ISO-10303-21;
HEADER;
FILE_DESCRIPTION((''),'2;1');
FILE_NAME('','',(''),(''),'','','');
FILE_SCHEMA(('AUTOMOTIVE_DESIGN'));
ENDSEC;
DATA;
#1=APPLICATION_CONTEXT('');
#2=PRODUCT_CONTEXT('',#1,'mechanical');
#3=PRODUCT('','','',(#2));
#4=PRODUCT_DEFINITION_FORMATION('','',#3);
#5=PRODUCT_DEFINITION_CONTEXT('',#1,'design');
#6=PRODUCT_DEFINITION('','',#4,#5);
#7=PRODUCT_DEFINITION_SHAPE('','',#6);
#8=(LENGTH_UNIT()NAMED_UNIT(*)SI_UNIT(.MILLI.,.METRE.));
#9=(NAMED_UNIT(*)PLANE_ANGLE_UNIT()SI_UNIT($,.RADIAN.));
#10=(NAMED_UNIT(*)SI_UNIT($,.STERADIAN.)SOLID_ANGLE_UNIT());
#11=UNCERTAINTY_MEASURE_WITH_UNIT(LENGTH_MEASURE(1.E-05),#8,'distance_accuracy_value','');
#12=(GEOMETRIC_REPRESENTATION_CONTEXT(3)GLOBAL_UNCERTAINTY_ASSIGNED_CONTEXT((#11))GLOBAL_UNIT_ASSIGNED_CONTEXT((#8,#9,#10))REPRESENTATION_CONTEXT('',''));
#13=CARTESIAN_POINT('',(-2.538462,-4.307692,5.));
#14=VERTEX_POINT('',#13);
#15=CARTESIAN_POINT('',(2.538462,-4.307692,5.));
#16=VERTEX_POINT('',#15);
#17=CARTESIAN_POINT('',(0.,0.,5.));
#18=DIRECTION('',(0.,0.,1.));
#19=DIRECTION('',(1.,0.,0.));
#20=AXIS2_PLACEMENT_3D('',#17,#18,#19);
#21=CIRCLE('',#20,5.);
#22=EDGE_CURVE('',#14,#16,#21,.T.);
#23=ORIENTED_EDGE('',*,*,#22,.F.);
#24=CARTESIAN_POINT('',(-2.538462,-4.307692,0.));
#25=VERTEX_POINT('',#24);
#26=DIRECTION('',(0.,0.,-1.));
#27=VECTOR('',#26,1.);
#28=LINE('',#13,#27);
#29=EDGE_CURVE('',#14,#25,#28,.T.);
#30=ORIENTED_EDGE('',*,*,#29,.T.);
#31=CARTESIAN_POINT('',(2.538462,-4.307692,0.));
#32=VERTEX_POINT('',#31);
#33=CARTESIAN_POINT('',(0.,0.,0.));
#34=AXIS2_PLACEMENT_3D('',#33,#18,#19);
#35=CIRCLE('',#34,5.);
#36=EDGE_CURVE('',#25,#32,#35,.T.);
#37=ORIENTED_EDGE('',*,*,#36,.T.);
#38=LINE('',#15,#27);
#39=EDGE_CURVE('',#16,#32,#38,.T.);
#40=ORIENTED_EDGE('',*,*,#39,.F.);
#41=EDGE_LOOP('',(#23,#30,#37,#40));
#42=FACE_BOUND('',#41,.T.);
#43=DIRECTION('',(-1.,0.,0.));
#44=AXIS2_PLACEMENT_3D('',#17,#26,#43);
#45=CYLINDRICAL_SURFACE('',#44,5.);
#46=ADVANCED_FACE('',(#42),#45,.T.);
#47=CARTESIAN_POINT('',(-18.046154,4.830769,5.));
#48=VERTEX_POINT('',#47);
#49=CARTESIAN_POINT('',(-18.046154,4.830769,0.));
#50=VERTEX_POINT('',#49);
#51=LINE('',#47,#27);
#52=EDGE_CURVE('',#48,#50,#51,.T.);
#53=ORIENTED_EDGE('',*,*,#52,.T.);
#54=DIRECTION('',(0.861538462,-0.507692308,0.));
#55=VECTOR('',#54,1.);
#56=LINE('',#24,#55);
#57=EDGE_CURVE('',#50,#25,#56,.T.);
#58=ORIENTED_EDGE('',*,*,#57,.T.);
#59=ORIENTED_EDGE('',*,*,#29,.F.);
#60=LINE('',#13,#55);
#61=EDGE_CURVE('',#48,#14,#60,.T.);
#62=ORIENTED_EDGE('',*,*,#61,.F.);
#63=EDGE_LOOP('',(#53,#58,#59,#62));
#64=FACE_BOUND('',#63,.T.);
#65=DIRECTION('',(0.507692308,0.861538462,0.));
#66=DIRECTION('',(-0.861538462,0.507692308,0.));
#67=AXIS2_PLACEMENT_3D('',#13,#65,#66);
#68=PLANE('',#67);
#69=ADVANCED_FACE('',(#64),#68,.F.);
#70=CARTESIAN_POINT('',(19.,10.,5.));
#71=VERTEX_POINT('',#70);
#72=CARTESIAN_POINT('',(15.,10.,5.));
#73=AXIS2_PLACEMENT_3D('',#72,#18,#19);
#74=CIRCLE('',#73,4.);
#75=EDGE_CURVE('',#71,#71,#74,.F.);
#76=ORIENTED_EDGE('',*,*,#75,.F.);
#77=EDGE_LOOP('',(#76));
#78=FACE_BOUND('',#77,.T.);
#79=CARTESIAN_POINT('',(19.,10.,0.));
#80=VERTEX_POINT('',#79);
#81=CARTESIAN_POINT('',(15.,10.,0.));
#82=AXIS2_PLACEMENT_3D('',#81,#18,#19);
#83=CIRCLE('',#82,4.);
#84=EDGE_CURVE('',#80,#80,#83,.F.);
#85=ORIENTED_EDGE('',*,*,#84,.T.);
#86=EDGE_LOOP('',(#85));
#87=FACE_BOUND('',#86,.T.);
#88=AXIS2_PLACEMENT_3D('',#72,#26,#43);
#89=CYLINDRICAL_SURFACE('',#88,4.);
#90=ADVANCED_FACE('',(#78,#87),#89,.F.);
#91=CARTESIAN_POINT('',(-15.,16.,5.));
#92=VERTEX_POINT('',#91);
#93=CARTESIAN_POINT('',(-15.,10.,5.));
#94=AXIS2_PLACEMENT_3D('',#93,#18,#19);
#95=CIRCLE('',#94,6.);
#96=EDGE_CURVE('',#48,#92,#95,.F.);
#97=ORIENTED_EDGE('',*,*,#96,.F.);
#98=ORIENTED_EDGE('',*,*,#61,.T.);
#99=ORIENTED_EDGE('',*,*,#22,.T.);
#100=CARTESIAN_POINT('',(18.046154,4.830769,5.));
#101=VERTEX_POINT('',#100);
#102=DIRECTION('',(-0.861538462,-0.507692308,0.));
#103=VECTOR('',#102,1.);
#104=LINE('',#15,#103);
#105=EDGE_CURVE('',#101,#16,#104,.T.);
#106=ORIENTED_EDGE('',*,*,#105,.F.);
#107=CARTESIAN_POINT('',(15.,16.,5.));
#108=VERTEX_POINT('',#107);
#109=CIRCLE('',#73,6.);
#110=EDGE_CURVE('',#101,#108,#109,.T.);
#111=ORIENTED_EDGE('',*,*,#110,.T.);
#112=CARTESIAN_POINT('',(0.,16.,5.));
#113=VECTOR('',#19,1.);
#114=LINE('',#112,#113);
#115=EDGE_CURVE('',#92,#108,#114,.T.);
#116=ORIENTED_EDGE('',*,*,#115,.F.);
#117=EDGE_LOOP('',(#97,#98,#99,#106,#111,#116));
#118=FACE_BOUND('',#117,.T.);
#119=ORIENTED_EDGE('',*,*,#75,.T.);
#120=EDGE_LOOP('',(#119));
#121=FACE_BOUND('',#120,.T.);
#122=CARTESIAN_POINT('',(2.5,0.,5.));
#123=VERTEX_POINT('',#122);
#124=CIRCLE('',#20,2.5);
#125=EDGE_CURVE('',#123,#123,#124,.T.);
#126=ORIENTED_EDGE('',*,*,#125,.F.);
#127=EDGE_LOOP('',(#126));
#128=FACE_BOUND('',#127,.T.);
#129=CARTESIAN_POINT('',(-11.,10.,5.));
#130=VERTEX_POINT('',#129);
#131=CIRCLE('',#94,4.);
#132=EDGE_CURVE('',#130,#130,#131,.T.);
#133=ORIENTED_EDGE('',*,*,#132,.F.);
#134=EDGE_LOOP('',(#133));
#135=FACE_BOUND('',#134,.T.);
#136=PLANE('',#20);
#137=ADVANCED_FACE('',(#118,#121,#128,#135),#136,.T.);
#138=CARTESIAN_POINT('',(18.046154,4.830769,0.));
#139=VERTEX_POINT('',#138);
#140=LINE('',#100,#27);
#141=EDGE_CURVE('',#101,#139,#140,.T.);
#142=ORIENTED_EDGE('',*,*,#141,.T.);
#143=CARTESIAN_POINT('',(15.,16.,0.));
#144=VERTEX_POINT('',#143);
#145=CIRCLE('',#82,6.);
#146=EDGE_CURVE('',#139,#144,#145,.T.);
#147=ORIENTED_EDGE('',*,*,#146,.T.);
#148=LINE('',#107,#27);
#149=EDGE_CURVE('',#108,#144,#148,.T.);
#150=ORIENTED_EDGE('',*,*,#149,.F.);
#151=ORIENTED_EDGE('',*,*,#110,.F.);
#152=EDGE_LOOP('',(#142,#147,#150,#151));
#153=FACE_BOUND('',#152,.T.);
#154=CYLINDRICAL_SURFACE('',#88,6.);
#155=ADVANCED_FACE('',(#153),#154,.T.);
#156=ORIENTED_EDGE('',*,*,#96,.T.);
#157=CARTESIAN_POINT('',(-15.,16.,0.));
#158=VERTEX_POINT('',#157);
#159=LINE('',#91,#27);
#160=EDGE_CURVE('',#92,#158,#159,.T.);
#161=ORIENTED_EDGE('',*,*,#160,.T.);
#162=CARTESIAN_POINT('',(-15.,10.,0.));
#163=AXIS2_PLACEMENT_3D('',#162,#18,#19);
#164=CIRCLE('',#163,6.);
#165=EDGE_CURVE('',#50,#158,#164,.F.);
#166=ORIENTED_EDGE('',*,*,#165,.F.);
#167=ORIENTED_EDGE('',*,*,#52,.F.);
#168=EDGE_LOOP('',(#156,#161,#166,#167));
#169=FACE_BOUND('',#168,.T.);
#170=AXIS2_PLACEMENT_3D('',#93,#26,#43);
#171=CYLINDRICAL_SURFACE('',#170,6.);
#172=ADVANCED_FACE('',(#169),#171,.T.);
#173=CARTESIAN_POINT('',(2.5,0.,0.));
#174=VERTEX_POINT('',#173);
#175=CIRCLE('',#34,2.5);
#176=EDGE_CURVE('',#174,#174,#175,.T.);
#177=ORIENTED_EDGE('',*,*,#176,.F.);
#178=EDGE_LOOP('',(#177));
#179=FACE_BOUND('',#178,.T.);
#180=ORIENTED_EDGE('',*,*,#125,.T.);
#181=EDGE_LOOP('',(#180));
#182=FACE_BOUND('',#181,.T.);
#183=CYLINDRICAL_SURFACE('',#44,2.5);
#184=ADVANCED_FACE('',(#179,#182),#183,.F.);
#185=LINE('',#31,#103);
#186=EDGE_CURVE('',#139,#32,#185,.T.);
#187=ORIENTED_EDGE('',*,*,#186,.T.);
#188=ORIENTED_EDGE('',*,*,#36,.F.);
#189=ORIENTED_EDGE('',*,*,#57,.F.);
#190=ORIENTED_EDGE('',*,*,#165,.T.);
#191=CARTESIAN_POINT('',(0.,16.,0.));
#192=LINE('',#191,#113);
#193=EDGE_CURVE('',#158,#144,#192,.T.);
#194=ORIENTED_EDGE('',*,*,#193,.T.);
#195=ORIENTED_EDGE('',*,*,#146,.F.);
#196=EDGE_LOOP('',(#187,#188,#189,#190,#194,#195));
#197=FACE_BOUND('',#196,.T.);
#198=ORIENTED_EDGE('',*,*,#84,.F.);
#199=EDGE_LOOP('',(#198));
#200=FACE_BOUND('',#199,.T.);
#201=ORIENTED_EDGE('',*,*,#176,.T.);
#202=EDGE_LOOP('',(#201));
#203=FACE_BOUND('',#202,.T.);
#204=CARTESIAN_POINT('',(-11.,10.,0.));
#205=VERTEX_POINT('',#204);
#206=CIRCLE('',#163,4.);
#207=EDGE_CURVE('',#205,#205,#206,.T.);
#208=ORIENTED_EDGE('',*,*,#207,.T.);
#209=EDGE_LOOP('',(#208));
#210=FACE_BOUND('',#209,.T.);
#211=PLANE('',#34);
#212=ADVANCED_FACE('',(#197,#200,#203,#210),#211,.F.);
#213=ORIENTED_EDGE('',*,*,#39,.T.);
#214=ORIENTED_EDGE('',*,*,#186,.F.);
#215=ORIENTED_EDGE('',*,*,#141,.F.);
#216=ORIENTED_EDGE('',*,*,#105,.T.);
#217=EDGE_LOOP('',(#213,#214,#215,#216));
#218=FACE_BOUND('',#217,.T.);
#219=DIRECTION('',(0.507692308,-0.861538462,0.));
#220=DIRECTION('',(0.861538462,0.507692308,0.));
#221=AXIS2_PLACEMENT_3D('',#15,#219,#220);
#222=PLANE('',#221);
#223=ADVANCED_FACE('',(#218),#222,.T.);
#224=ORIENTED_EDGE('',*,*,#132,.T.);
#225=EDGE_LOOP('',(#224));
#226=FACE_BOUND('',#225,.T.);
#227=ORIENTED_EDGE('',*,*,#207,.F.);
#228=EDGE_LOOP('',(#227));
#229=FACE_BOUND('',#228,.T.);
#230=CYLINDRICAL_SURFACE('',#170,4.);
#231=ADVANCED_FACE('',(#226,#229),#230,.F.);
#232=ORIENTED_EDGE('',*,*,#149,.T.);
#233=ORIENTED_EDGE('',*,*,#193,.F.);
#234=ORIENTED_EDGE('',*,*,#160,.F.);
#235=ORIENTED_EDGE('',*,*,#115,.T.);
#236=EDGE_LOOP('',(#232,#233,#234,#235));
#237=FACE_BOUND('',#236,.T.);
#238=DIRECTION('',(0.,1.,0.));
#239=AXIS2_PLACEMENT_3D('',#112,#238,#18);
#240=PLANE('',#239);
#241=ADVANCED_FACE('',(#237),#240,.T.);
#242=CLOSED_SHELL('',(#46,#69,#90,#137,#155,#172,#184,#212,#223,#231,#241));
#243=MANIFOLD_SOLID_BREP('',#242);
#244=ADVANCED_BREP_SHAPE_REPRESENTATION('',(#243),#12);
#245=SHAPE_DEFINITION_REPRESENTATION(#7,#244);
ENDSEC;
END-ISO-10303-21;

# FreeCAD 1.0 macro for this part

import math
import FreeCAD as App
import Part
import Sketcher

V = App.Vector

doc = App.newDocument("Part")
params = doc.addObject("Spreadsheet::Sheet", "Params")
for row, (alias, value) in enumerate([
    ("sketch1_diameter", "5 mm"),
    ("sketch1_diameter2", "8 mm"),
    ("sketch1_radius", "6 mm"),
    ("sketch1_radius2", "5 mm"),
    ("sketch1_width", "30 mm"),
    ("pad1_length", "5 mm"),
], start=1):
    params.set(f"A{row}", alias)
    params.set(f"B{row}", "=" + value)
    params.setAlias(f"B{row}", alias)

body = doc.addObject("PartDesign::Body", "Body")

# Sketch on XY plane
sketch1 = doc.addObject("Sketcher::SketchObject", "Sketch")
body.addObject(sketch1)
sketch1.AttachmentSupport = (doc.XY_Plane, [""])
sketch1.MapMode = "FlatFace"
sketch1.addGeometry([
    Part.LineSegment(V(15, 16, 0), V(-15, 16, 0)),  # 0
    Part.ArcOfCircle(Part.Circle(V(-15, 10, 0), V(0, 0, 1), 6), math.radians(90), math.radians(239)),  # 1
    Part.LineSegment(V(-18, 4.8, 0), V(-2.5, -4.3, 0)),  # 2
    Part.ArcOfCircle(Part.Circle(V(0, 0, 0), V(0, 0, 1), 5), math.radians(-121), math.radians(-59)),  # 3
    Part.LineSegment(V(2.5, -4.3, 0), V(18, 4.8, 0)),  # 4
    Part.ArcOfCircle(Part.Circle(V(15, 10, 0), V(0, 0, 1), 6), math.radians(-59), math.radians(90)),  # 5
    Part.Circle(V(0, 0, 0), V(0, 0, 1), 2.5),  # 6
    Part.Circle(V(-15, 10, 0), V(0, 0, 1), 4),  # 7
    Part.Circle(V(15, 10, 0), V(0, 0, 1), 4),  # 8
], False)
sketch1.addConstraint([
    Sketcher.Constraint("Tangent", 0, 2, 1, 1),
    Sketcher.Constraint("Tangent", 1, 2, 2, 1),
    Sketcher.Constraint("Tangent", 2, 2, 3, 1),
    Sketcher.Constraint("Tangent", 3, 2, 4, 1),
    Sketcher.Constraint("Tangent", 4, 2, 5, 1),
    Sketcher.Constraint("Tangent", 5, 2, 0, 1),
    Sketcher.Constraint("Horizontal", 0),
    Sketcher.Constraint("Coincident", 3, 3, -1, 1),
    Sketcher.Constraint("Coincident", 6, 3, -1, 1),
    Sketcher.Constraint("Coincident", 7, 3, 1, 3),
    Sketcher.Constraint("Coincident", 8, 3, 5, 3),
    Sketcher.Constraint("Equal", 1, 5),
    Sketcher.Constraint("Equal", 7, 8),
    Sketcher.Constraint("Horizontal", 2, 2, 3, 2),
    Sketcher.Constraint("Diameter", 6, 5.0),
    Sketcher.Constraint("Diameter", 7, 8.0),
    Sketcher.Constraint("Radius", 1, 6.0),
    Sketcher.Constraint("Radius", 3, 5.0),
    Sketcher.Constraint("DistanceX", 0, 2, 0, 1, 30.0),
    Sketcher.Constraint("Distance", 2, 18.0),
])
sketch1.setExpression("Constraints[14]", "Params.sketch1_diameter")
sketch1.setExpression("Constraints[15]", "Params.sketch1_diameter2")
sketch1.setExpression("Constraints[16]", "Params.sketch1_radius")
sketch1.setExpression("Constraints[17]", "Params.sketch1_radius2")
sketch1.setExpression("Constraints[18]", "Params.sketch1_width")
pad1 = doc.addObject("PartDesign::Pad", "Pad")
body.addObject(pad1)
pad1.Profile = sketch1
pad1.setExpression("Length", "Params.pad1_length")

doc.recompute()
